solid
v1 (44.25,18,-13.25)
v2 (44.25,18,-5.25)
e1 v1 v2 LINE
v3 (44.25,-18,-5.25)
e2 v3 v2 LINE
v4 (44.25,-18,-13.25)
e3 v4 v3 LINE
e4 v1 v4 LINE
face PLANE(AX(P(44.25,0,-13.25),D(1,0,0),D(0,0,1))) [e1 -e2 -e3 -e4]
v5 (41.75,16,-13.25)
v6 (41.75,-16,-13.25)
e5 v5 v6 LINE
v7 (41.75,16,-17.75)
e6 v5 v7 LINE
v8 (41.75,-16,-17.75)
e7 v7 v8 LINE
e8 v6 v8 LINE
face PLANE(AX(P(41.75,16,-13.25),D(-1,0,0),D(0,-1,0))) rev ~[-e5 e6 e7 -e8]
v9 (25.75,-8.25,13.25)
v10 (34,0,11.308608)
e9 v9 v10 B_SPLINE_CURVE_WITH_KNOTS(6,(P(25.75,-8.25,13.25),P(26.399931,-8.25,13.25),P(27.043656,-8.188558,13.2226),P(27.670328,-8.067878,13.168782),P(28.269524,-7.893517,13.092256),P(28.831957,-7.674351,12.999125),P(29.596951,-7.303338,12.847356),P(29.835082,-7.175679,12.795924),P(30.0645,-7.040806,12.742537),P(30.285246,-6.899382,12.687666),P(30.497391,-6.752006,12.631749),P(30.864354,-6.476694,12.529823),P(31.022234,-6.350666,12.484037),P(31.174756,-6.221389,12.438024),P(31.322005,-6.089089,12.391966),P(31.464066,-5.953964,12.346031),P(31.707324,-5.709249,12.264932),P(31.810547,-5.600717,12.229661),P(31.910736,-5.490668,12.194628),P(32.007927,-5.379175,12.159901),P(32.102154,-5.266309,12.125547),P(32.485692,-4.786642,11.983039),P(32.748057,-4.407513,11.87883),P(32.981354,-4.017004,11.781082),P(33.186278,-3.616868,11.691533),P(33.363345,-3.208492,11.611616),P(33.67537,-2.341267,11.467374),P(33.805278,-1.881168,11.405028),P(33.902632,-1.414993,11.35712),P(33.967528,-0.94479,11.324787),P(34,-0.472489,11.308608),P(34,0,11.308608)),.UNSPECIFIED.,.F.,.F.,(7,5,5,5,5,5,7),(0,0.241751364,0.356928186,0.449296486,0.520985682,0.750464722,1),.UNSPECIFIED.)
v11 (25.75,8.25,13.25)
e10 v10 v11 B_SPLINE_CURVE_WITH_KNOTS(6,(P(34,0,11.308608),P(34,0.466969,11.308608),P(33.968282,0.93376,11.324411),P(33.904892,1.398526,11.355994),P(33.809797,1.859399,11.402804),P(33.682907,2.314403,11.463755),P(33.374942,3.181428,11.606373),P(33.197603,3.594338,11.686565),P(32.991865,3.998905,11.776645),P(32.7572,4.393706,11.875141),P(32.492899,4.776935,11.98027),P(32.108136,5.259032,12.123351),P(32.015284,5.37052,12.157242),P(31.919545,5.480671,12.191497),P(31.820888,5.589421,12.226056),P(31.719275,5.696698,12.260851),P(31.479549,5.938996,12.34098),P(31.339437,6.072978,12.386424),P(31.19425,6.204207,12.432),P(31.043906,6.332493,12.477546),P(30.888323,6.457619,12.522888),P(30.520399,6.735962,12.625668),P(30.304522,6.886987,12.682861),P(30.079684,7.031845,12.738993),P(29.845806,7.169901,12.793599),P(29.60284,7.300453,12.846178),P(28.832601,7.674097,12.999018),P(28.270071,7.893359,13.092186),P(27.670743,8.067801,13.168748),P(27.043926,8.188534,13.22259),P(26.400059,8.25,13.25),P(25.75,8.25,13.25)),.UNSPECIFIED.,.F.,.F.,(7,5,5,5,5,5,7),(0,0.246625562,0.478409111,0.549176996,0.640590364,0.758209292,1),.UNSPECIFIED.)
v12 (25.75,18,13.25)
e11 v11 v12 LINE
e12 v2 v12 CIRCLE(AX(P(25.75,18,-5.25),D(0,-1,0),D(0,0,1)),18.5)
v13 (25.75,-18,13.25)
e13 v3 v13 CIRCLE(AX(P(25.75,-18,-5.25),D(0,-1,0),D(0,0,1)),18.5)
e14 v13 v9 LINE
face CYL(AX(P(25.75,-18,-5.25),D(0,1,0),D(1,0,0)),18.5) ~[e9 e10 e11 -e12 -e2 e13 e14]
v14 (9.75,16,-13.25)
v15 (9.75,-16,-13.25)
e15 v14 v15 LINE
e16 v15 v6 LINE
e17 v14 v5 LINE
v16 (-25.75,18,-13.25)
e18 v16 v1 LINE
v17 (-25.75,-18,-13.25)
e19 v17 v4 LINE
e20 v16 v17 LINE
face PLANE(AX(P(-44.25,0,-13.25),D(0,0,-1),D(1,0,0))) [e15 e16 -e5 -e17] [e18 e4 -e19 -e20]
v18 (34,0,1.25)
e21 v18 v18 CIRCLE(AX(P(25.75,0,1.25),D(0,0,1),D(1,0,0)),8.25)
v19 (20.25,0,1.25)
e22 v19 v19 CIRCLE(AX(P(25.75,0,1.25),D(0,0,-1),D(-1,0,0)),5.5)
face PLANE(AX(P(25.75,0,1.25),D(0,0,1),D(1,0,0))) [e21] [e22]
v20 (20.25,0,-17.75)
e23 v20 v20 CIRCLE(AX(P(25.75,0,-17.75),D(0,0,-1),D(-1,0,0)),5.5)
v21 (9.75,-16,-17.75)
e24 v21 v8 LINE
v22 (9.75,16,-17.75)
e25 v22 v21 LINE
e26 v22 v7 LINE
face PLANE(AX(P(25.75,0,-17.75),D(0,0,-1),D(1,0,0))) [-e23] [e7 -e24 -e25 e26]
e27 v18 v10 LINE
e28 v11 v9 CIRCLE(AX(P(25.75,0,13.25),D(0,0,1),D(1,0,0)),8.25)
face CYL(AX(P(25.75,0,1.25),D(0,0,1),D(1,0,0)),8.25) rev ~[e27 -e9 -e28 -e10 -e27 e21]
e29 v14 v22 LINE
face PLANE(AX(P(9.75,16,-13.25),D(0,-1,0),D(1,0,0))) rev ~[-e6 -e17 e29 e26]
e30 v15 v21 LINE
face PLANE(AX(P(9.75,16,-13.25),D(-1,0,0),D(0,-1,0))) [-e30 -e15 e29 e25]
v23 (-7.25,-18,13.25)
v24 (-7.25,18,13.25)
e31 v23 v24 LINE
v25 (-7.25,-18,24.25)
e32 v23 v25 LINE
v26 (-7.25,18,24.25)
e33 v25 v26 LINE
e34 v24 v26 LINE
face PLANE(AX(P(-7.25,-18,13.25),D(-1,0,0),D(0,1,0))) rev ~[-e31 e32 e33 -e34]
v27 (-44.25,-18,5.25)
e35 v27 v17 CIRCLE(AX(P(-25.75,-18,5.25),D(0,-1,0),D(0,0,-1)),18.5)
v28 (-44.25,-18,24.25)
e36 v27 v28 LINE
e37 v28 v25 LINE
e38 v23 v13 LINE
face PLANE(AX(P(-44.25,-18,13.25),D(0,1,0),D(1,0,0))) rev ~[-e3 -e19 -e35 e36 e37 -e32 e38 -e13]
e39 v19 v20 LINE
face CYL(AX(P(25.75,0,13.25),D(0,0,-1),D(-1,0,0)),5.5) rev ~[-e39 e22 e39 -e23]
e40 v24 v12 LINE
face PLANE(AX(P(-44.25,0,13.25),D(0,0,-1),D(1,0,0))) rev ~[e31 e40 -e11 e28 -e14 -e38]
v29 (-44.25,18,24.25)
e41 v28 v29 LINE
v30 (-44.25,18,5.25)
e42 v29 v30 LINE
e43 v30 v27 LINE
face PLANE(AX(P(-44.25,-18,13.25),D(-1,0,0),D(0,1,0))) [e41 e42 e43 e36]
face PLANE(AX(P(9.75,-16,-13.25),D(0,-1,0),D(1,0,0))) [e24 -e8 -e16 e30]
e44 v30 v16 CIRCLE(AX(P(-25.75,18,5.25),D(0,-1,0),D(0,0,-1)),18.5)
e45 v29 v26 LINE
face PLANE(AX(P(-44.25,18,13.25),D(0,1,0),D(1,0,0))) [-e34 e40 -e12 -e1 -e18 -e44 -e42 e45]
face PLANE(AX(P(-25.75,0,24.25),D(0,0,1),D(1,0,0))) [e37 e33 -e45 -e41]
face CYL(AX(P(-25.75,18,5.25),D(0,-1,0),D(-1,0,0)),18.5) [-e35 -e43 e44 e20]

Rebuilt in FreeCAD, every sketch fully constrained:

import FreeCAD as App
import Part
import Sketcher
Q = App.Units.Quantity


def edges_at(feature, points):
    """Names of the edges that pass closest to the given points."""
    edges = feature.Shape.Edges
    near = lambda p: min(range(len(edges)), key=lambda i: edges[i].distToShape(Part.Vertex(*p))[0])
    return sorted({f"Edge{near(p) + 1}" for p in points})

doc = App.newDocument("Part")
params = doc.addObject("Spreadsheet::Sheet", "Params")
for row, (alias, value) in enumerate([
    ("sketch1_width", "88.5 mm"),
    ("sketch1_height", "26.5 mm"),
    ("pad1_length", "36 mm"),
    ("sketch2_width", "37 mm"),
    ("sketch2_height", "36 mm"),
    ("pad2_length", "11 mm"),
    ("fillet_radius", "18.5 mm"),
    ("sketch3_width", "32 mm"),
    ("pad3_length", "4.5 mm"),
    ("sketch4_diameter", "11 mm"),
    ("hole_diameter", "11 mm"),
    ("hole_cbore_diameter", "16.5 mm"),
    ("hole_cbore_depth", "12 mm"),
], start=1):
    params.set(f"A{row}", alias)
    params.set(f"B{row}", "=" + value)
    params.setAlias(f"B{row}", alias)

body = doc.addObject("PartDesign::Body", "Body")

sketch1 = doc.addObject("Sketcher::SketchObject", "Sketch")
body.addObject(sketch1)
sketch1.AttachmentSupport = (doc.XZ_Plane, [""])
sketch1.MapMode = "FlatFace"
sketch1.addGeometry(Part.LineSegment(App.Vector(-44.25, 13.25, 0), App.Vector(-44.25, -13.25, 0)), False)
sketch1.addGeometry(Part.LineSegment(App.Vector(-44.25, -13.25, 0), App.Vector(44.25, -13.25, 0)), False)
sketch1.addGeometry(Part.LineSegment(App.Vector(44.25, -13.25, 0), App.Vector(44.25, 13.25, 0)), False)
sketch1.addGeometry(Part.LineSegment(App.Vector(44.25, 13.25, 0), App.Vector(-44.25, 13.25, 0)), False)
sketch1.addConstraint(Sketcher.Constraint("Coincident", 0, 2, 1, 1))
sketch1.addConstraint(Sketcher.Constraint("Coincident", 1, 2, 2, 1))
sketch1.addConstraint(Sketcher.Constraint("Coincident", 2, 2, 3, 1))
sketch1.addConstraint(Sketcher.Constraint("Coincident", 3, 2, 0, 1))
sketch1.addConstraint(Sketcher.Constraint("Vertical", 0))
sketch1.addConstraint(Sketcher.Constraint("Horizontal", 1))
sketch1.addConstraint(Sketcher.Constraint("Vertical", 2))
sketch1.addConstraint(Sketcher.Constraint("Horizontal", 3))
sketch1.addConstraint(Sketcher.Constraint("Symmetric", 0, 2, 2, 2, -1, 1))
sketch1.addConstraint(Sketcher.Constraint("DistanceX", 1, 1, 1, 2, Q("88.5 mm")))
sketch1.addConstraint(Sketcher.Constraint("DistanceY", 0, 2, 0, 1, Q("26.5 mm")))
sketch1.setExpression("Constraints[9]", "Params.sketch1_width")
sketch1.setExpression("Constraints[10]", "Params.sketch1_height")
pad1 = doc.addObject("PartDesign::Pad", "Pad")
body.addObject(pad1)
pad1.Profile = sketch1
pad1.setExpression("Length", "Params.pad1_length")
pad1.Midplane = True

sketch2 = doc.addObject("Sketcher::SketchObject", "Sketch001")
body.addObject(sketch2)
sketch2.AttachmentSupport = (doc.XY_Plane, [""])
sketch2.MapMode = "FlatFace"
sketch2.AttachmentOffset = App.Placement(App.Vector(0, 0, 13.25), App.Rotation())
sketch2.addGeometry(Part.LineSegment(App.Vector(-44.25, 18, 0), App.Vector(-44.25, -18, 0)), False)
sketch2.addGeometry(Part.LineSegment(App.Vector(-44.25, -18, 0), App.Vector(-7.25, -18, 0)), False)
sketch2.addGeometry(Part.LineSegment(App.Vector(-7.25, -18, 0), App.Vector(-7.25, 18, 0)), False)
sketch2.addGeometry(Part.LineSegment(App.Vector(-7.25, 18, 0), App.Vector(-44.25, 18, 0)), False)
sketch2.addConstraint(Sketcher.Constraint("Coincident", 0, 2, 1, 1))
sketch2.addConstraint(Sketcher.Constraint("Coincident", 1, 2, 2, 1))
sketch2.addConstraint(Sketcher.Constraint("Coincident", 2, 2, 3, 1))
sketch2.addConstraint(Sketcher.Constraint("Coincident", 3, 2, 0, 1))
sketch2.addConstraint(Sketcher.Constraint("Vertical", 0))
sketch2.addConstraint(Sketcher.Constraint("Horizontal", 1))
sketch2.addConstraint(Sketcher.Constraint("Vertical", 2))
sketch2.addConstraint(Sketcher.Constraint("Horizontal", 3))
sketch2.addConstraint(Sketcher.Constraint("DistanceX", 1, 1, 1, 2, Q("37 mm")))
sketch2.addConstraint(Sketcher.Constraint("DistanceY", 0, 2, 0, 1, Q("36 mm")))
sketch2.addConstraint(Sketcher.Constraint("DistanceY", 0, 2, -1, 1, Q("18 mm")))
sketch2.addConstraint(Sketcher.Constraint("DistanceX", 0, 2, -1, 1, Q("44.25 mm")))
sketch2.setExpression("Constraints[8]", "Params.sketch2_width")
sketch2.setExpression("Constraints[9]", "Params.sketch2_height")
pad2 = doc.addObject("PartDesign::Pad", "Pad001")
body.addObject(pad2)
pad2.Profile = sketch2
pad2.setExpression("Length", "Params.pad2_length")
doc.recompute()

fillet = doc.addObject("PartDesign::Fillet", "Fillet")
body.addObject(fillet)
fillet.Base = (pad2, edges_at(pad2, [(44.25, 0, 13.25), (-44.25, 0, -13.25)]))
fillet.setExpression("Radius", "Params.fillet_radius")

sketch3 = doc.addObject("Sketcher::SketchObject", "Sketch002")
body.addObject(sketch3)
sketch3.AttachmentSupport = (doc.XY_Plane, [""])
sketch3.MapMode = "FlatFace"
sketch3.AttachmentOffset = App.Placement(App.Vector(0, 0, -13.25), App.Rotation())
sketch3.addGeometry(Part.LineSegment(App.Vector(9.75, -16, 0), App.Vector(9.75, 16, 0)), False)
sketch3.addGeometry(Part.LineSegment(App.Vector(9.75, 16, 0), App.Vector(41.75, 16, 0)), False)
sketch3.addGeometry(Part.LineSegment(App.Vector(41.75, 16, 0), App.Vector(41.75, -16, 0)), False)
sketch3.addGeometry(Part.LineSegment(App.Vector(41.75, -16, 0), App.Vector(9.75, -16, 0)), False)
sketch3.addConstraint(Sketcher.Constraint("Coincident", 0, 2, 1, 1))
sketch3.addConstraint(Sketcher.Constraint("Coincident", 1, 2, 2, 1))
sketch3.addConstraint(Sketcher.Constraint("Coincident", 2, 2, 3, 1))
sketch3.addConstraint(Sketcher.Constraint("Coincident", 3, 2, 0, 1))
sketch3.addConstraint(Sketcher.Constraint("Vertical", 0))
sketch3.addConstraint(Sketcher.Constraint("Horizontal", 1))
sketch3.addConstraint(Sketcher.Constraint("Vertical", 2))
sketch3.addConstraint(Sketcher.Constraint("Horizontal", 3))
sketch3.addConstraint(Sketcher.Constraint("Equal", 3, 0))
sketch3.addConstraint(Sketcher.Constraint("DistanceX", 1, 1, 1, 2, Q("32 mm")))
sketch3.addConstraint(Sketcher.Constraint("DistanceY", -1, 1, 0, 2, Q("16 mm")))
sketch3.addConstraint(Sketcher.Constraint("DistanceX", -1, 1, 0, 2, Q("9.75 mm")))
sketch3.setExpression("Constraints[9]", "Params.sketch3_width")
pad3 = doc.addObject("PartDesign::Pad", "Pad002")
body.addObject(pad3)
pad3.Profile = sketch3
pad3.setExpression("Length", "Params.pad3_length")
pad3.Reversed = True

sketch4 = doc.addObject("Sketcher::SketchObject", "Sketch003")
body.addObject(sketch4)
sketch4.AttachmentSupport = (doc.XY_Plane, [""])
sketch4.MapMode = "FlatFace"
sketch4.AttachmentOffset = App.Placement(App.Vector(0, 0, 13.25), App.Rotation())
sketch4.addGeometry(Part.Circle(App.Vector(25.75, 0, 0), App.Vector(0, 0, 1), 5.5), False)
sketch4.addConstraint(Sketcher.Constraint("PointOnObject", 0, 3, -1))
sketch4.addConstraint(Sketcher.Constraint("Diameter", 0, Q("11 mm")))
sketch4.addConstraint(Sketcher.Constraint("DistanceX", -1, 1, 0, 3, Q("25.75 mm")))
sketch4.setExpression("Constraints[1]", "Params.sketch4_diameter")
doc.recompute()
hole = doc.addObject("PartDesign::Hole", "Hole")
body.addObject(hole)
hole.Profile = sketch4
hole.ThreadType = "None"
hole.setExpression("Diameter", "Params.hole_diameter")
hole.DepthType = "ThroughAll"
hole.HoleCutType = "Counterbore"
hole.setExpression("HoleCutDiameter", "Params.hole_cbore_diameter")
hole.setExpression("HoleCutDepth", "Params.hole_cbore_depth")

doc.recompute()
